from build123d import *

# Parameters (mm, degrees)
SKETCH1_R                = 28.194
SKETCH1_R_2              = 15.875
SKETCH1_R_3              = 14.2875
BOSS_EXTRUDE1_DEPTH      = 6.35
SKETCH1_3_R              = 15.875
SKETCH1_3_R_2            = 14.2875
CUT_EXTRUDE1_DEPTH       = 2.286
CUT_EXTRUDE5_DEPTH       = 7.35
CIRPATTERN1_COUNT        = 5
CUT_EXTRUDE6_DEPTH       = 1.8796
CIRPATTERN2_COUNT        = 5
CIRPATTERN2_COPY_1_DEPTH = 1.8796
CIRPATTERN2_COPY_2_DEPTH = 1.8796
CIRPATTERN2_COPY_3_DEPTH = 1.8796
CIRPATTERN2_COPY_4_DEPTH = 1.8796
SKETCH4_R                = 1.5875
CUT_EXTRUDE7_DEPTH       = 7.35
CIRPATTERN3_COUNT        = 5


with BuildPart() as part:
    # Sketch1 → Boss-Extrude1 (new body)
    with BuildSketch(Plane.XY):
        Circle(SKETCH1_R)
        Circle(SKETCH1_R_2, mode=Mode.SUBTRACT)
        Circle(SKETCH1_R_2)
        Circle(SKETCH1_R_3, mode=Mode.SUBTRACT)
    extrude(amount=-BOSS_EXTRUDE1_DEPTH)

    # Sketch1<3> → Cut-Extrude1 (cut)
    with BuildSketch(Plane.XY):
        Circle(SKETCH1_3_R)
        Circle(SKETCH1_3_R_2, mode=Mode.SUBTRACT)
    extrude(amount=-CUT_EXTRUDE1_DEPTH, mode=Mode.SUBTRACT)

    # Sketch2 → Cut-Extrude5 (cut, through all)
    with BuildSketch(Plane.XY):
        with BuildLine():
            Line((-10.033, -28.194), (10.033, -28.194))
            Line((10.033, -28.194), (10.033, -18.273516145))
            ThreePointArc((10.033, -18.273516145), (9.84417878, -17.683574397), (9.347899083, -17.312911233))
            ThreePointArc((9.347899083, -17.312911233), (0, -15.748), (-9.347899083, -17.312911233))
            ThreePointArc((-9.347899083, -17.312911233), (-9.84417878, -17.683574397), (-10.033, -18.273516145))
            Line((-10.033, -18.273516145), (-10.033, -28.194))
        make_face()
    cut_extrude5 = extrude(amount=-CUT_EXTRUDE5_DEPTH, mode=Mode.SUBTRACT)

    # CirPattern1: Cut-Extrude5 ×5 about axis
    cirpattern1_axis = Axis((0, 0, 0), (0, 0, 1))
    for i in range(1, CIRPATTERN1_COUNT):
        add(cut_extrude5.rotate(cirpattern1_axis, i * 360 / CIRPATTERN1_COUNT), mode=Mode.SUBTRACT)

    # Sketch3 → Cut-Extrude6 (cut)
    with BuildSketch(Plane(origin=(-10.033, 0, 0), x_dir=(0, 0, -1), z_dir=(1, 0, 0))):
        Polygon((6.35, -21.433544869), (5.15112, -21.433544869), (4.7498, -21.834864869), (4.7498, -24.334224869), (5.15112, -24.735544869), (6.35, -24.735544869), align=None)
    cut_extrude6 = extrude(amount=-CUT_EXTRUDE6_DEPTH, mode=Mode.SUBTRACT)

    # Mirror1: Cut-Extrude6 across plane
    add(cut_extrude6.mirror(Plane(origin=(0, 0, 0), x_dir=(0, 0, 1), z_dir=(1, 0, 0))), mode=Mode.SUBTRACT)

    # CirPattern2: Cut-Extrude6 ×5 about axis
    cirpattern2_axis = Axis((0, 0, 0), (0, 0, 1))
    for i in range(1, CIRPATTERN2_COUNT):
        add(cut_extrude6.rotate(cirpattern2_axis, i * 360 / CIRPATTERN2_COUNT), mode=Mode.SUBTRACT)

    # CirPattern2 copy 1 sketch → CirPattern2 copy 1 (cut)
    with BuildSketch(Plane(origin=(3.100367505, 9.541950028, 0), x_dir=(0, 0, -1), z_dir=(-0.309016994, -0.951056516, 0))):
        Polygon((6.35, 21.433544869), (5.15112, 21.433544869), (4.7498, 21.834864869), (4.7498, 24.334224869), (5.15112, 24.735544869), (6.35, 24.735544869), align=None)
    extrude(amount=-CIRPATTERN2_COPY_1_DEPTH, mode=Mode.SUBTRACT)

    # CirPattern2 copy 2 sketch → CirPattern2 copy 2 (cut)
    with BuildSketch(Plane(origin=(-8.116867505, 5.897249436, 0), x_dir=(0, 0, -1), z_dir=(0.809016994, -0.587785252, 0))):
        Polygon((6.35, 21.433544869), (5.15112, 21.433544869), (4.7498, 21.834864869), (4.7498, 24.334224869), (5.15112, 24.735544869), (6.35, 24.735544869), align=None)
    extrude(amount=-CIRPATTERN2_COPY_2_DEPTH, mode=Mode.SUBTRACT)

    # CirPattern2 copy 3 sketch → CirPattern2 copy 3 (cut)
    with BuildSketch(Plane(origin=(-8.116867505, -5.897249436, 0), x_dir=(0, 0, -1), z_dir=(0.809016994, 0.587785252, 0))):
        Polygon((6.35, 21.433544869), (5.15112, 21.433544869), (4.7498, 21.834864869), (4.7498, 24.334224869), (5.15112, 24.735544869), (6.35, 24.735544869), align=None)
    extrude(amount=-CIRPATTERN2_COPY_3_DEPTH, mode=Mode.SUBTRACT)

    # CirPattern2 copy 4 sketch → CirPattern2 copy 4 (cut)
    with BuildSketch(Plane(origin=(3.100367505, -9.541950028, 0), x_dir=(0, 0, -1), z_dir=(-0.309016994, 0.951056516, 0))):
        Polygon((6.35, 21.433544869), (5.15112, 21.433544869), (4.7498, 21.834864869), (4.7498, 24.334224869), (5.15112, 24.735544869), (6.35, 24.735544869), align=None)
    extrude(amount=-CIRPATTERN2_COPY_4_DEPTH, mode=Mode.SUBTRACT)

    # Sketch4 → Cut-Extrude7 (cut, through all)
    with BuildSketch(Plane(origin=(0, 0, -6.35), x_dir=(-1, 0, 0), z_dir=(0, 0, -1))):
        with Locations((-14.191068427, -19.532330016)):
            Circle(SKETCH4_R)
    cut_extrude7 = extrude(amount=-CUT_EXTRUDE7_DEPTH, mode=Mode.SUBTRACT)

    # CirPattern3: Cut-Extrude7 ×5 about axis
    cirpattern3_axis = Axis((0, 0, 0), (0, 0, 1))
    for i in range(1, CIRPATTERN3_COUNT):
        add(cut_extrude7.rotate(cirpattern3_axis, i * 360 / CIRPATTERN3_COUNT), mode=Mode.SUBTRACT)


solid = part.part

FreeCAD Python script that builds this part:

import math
import FreeCAD as App
import Part
import Sketcher
from FreeCAD import Vector
Q = App.Units.Quantity

doc = App.newDocument("Part")
params = doc.addObject("Spreadsheet::Sheet", "Params")
for row, (alias, value) in enumerate([
    ("sketch1_diameter", "2.22 in"),
    ("sketch1_diameter2", "1.125 in"),
    ("pad1_length", "0.25 in"),
    ("sketch2_diameter", "1.25 in"),
    ("sketch2_diameter2", "1.125 in"),
    ("pocket1_length", "0.09 in"),
    ("sketch3_radius", "0.04 in"),
    ("sketch3_radius2", "1.13 in"),
    ("sketch3_width", "0.79 in"),
    ("sketch4_width", "0.13 in"),
    ("pocket3_length", "0.074 in"),
    ("sketch5_height", "0.13 in"),
    ("pocket4_length", "0.074 in"),
    ("sketch6_height", "0.13 in"),
    ("pocket5_length", "0.074 in"),
    ("sketch7_height", "0.13 in"),
    ("pocket6_length", "0.074 in"),
    ("sketch8_height", "0.13 in"),
    ("pocket7_length", "0.074 in"),
    ("sketch9_diameter", "0.125 in"),
], start=1):
    params.set(f"A{row}", alias)
    params.set(f"B{row}", "=" + value)
    params.setAlias(f"B{row}", alias)

body = doc.addObject("PartDesign::Body", "Body")

# Sketch on XY plane
sketch1 = doc.addObject("Sketcher::SketchObject", "Sketch")
body.addObject(sketch1)
sketch1.AttachmentSupport = (doc.XY_Plane, [""])
sketch1.MapMode = "FlatFace"
sketch1.addGeometry(Part.Circle(Vector(0, 0, 0), Vector(0, 0, 1), 28.194), False)
sketch1.addGeometry(Part.Circle(Vector(0, 0, 0), Vector(0, 0, 1), 14.2875), False)
sketch1.addConstraint(Sketcher.Constraint("Coincident", 0, 3, -1, 1))
sketch1.addConstraint(Sketcher.Constraint("Coincident", 1, 3, -1, 1))
sketch1.addConstraint(Sketcher.Constraint("Diameter", 0, Q("2.22 in")))
sketch1.addConstraint(Sketcher.Constraint("Diameter", 1, Q("1.125 in")))
sketch1.setExpression("Constraints[2]", "Params.sketch1_diameter")
sketch1.setExpression("Constraints[3]", "Params.sketch1_diameter2")
pad1 = doc.addObject("PartDesign::Pad", "Pad")
body.addObject(pad1)
pad1.Profile = sketch1
pad1.setExpression("Length", "Params.pad1_length")
pad1.Reversed = True

# Sketch on XY plane
sketch2 = doc.addObject("Sketcher::SketchObject", "Sketch001")
body.addObject(sketch2)
sketch2.AttachmentSupport = (doc.XY_Plane, [""])
sketch2.MapMode = "FlatFace"
sketch2.addGeometry(Part.Circle(Vector(0, 0, 0), Vector(0, 0, 1), 15.875), False)
sketch2.addGeometry(Part.Circle(Vector(0, 0, 0), Vector(0, 0, 1), 14.2875), False)
sketch2.addConstraint(Sketcher.Constraint("Coincident", 0, 3, -1, 1))
sketch2.addConstraint(Sketcher.Constraint("Coincident", 1, 3, -1, 1))
sketch2.addConstraint(Sketcher.Constraint("Diameter", 0, Q("1.25 in")))
sketch2.addConstraint(Sketcher.Constraint("Diameter", 1, Q("1.125 in")))
sketch2.setExpression("Constraints[2]", "Params.sketch2_diameter")
sketch2.setExpression("Constraints[3]", "Params.sketch2_diameter2")
pocket1 = doc.addObject("PartDesign::Pocket", "Pocket")
body.addObject(pocket1)
pocket1.Profile = sketch2
pocket1.setExpression("Length", "Params.pocket1_length")

# Sketch on XY plane
sketch3 = doc.addObject("Sketcher::SketchObject", "Sketch002")
body.addObject(sketch3)
sketch3.AttachmentSupport = (doc.XY_Plane, [""])
sketch3.MapMode = "FlatFace"
sketch3.addGeometry(Part.LineSegment(Vector(-10.033, -28.194, 0), Vector(10.033, -28.194, 0)), False)
sketch3.addGeometry(Part.LineSegment(Vector(10.033, -28.194, 0), Vector(10.033, -18.273516, 0)), False)
sketch3.addGeometry(Part.ArcOfCircle(Part.Circle(Vector(9.017, -18.273516, 0), Vector(0, 0, 1), 1.016), math.radians(0), math.radians(70.992733)), False)
sketch3.addGeometry(Part.ArcOfCircle(Part.Circle(Vector(0, -44.45, 0), Vector(0, 0, 1), 28.702), math.radians(70.992733), math.radians(109.007267)), False)
sketch3.addGeometry(Part.ArcOfCircle(Part.Circle(Vector(-9.017, -18.273516, 0), Vector(0, 0, 1), 1.016), math.radians(109.007267), math.radians(180)), False)
sketch3.addGeometry(Part.LineSegment(Vector(-10.033, -18.273516, 0), Vector(-10.033, -28.194, 0)), False)
sketch3.addConstraint(Sketcher.Constraint("Coincident", 0, 2, 1, 1))
sketch3.addConstraint(Sketcher.Constraint("Tangent", 1, 2, 2, 1))
sketch3.addConstraint(Sketcher.Constraint("Tangent", 2, 2, 3, 1))
sketch3.addConstraint(Sketcher.Constraint("Tangent", 3, 2, 4, 1))
sketch3.addConstraint(Sketcher.Constraint("Tangent", 4, 2, 5, 1))
sketch3.addConstraint(Sketcher.Constraint("Coincident", 5, 2, 0, 1))
sketch3.addConstraint(Sketcher.Constraint("Horizontal", 0))
sketch3.addConstraint(Sketcher.Constraint("Vertical", 1))
sketch3.addConstraint(Sketcher.Constraint("Vertical", 5))
sketch3.addConstraint(Sketcher.Constraint("Equal", 2, 4))
sketch3.addConstraint(Sketcher.Constraint("Symmetric", 2, 3, 4, 3, -2))
sketch3.addConstraint(Sketcher.Constraint("Radius", 2, Q("0.04 in")))
sketch3.addConstraint(Sketcher.Constraint("Radius", 3, Q("1.13 in")))
sketch3.addConstraint(Sketcher.Constraint("DistanceX", 0, 1, 0, 2, Q("0.79 in")))
sketch3.addConstraint(Sketcher.Constraint("DistanceY", 3, 3, -1, 1, Q("1.75 in")))
sketch3.addConstraint(Sketcher.Constraint("DistanceY", 0, 2, -1, 1, Q("1.11 in")))
sketch3.setExpression("Constraints[11]", "Params.sketch3_radius")
sketch3.setExpression("Constraints[12]", "Params.sketch3_radius2")
sketch3.setExpression("Constraints[13]", "Params.sketch3_width")
pocket2 = doc.addObject("PartDesign::Pocket", "Pocket001")
body.addObject(pocket2)
pocket2.Profile = sketch3
pocket2.Type = "ThroughAll"
doc.recompute()

polarpattern = doc.addObject("PartDesign::PolarPattern", "PolarPattern")
body.addObject(polarpattern)
polarpattern.Originals = [pocket2]
polarpattern.Axis = (doc.Z_Axis, [""])
polarpattern.Angle = 360
polarpattern.Occurrences = 5
body.Tip = polarpattern

# Sketch on YZ plane
sketch4 = doc.addObject("Sketcher::SketchObject", "Sketch003")
body.addObject(sketch4)
sketch4.AttachmentSupport = (doc.YZ_Plane, [""])
sketch4.MapMode = "FlatFace"
sketch4.AttachmentOffset = App.Placement(Vector(0, 0, -0.395 * 25.4), App.Rotation())
sketch4.addGeometry(Part.LineSegment(Vector(-21.433545, -6.35, 0), Vector(-21.433545, -5.15112, 0)), False)
sketch4.addGeometry(Part.LineSegment(Vector(-21.433545, -5.15112, 0), Vector(-21.834865, -4.7498, 0)), False)
sketch4.addGeometry(Part.LineSegment(Vector(-21.834865, -4.7498, 0), Vector(-24.334225, -4.7498, 0)), False)
sketch4.addGeometry(Part.LineSegment(Vector(-24.334225, -4.7498, 0), Vector(-24.735545, -5.15112, 0)), False)
sketch4.addGeometry(Part.LineSegment(Vector(-24.735545, -5.15112, 0), Vector(-24.735545, -6.35, 0)), False)
sketch4.addGeometry(Part.LineSegment(Vector(-24.735545, -6.35, 0), Vector(-21.433545, -6.35, 0)), False)
sketch4.addConstraint(Sketcher.Constraint("Coincident", 0, 2, 1, 1))
sketch4.addConstraint(Sketcher.Constraint("Coincident", 1, 2, 2, 1))
sketch4.addConstraint(Sketcher.Constraint("Coincident", 2, 2, 3, 1))
sketch4.addConstraint(Sketcher.Constraint("Coincident", 3, 2, 4, 1))
sketch4.addConstraint(Sketcher.Constraint("Coincident", 4, 2, 5, 1))
sketch4.addConstraint(Sketcher.Constraint("Coincident", 5, 2, 0, 1))
sketch4.addConstraint(Sketcher.Constraint("Vertical", 0))
sketch4.addConstraint(Sketcher.Constraint("Horizontal", 2))
sketch4.addConstraint(Sketcher.Constraint("Vertical", 4))
sketch4.addConstraint(Sketcher.Constraint("Horizontal", 5))
sketch4.addConstraint(Sketcher.Constraint("Perpendicular", 1, 3))
sketch4.addConstraint(Sketcher.Constraint("Horizontal", 0, 2, 3, 2))
sketch4.addConstraint(Sketcher.Constraint("Equal", 1, 3))
sketch4.addConstraint(Sketcher.Constraint("DistanceX", 5, 1, 5, 2, Q("0.13 in")))
sketch4.addConstraint(Sketcher.Constraint("DistanceY", 4, 2, -1, 1, Q("0.25 in")))
sketch4.addConstraint(Sketcher.Constraint("DistanceX", 2, 2, 2, 1, Q("0.0984 in")))
sketch4.addConstraint(Sketcher.Constraint("DistanceY", 0, 1, 0, 2, Q("0.0472 in")))
sketch4.addConstraint(Sketcher.Constraint("DistanceX", 0, 2, -1, 1, 21.433545))
sketch4.setExpression("Constraints[13]", "Params.sketch4_width")
pocket3 = doc.addObject("PartDesign::Pocket", "Pocket002")
body.addObject(pocket3)
pocket3.Profile = sketch4
pocket3.setExpression("Length", "Params.pocket3_length")
doc.recompute()

mirrored = doc.addObject("PartDesign::Mirrored", "Mirrored")
body.addObject(mirrored)
mirrored.Originals = [pocket3]
mirrored.MirrorPlane = (doc.YZ_Plane, [""])
body.Tip = mirrored
doc.recompute()

polarpattern2 = doc.addObject("PartDesign::PolarPattern", "PolarPattern001")
body.addObject(polarpattern2)
polarpattern2.Originals = [pocket3]
polarpattern2.Axis = (doc.Z_Axis, [""])
polarpattern2.Angle = 360
polarpattern2.Occurrences = 5
body.Tip = polarpattern2

# Sketch on an angled plane
sketch5 = doc.addObject("Sketcher::SketchObject", "Sketch004")
body.addObject(sketch5)
sketch5.Placement = App.Placement(Vector(3.100368, 9.54195, 0), App.Rotation(Vector(0, 0, -1), Vector(0.951056516, -0.309016994, 0), Vector(-0.309016994, -0.951056516, 0), "ZXY"))
sketch5.addGeometry(Part.LineSegment(Vector(5.15112, 21.433545, 0), Vector(6.35, 21.433545, 0)), False)
sketch5.addGeometry(Part.LineSegment(Vector(6.35, 21.433545, 0), Vector(6.35, 24.735545, 0)), False)
sketch5.addGeometry(Part.LineSegment(Vector(6.35, 24.735545, 0), Vector(5.15112, 24.735545, 0)), False)
sketch5.addGeometry(Part.LineSegment(Vector(5.15112, 24.735545, 0), Vector(4.7498, 24.334225, 0)), False)
sketch5.addGeometry(Part.LineSegment(Vector(4.7498, 24.334225, 0), Vector(4.7498, 21.834865, 0)), False)
sketch5.addGeometry(Part.LineSegment(Vector(4.7498, 21.834865, 0), Vector(5.15112, 21.433545, 0)), False)
sketch5.addConstraint(Sketcher.Constraint("Coincident", 0, 2, 1, 1))
sketch5.addConstraint(Sketcher.Constraint("Coincident", 1, 2, 2, 1))
sketch5.addConstraint(Sketcher.Constraint("Coincident", 2, 2, 3, 1))
sketch5.addConstraint(Sketcher.Constraint("Coincident", 3, 2, 4, 1))
sketch5.addConstraint(Sketcher.Constraint("Coincident", 4, 2, 5, 1))
sketch5.addConstraint(Sketcher.Constraint("Coincident", 5, 2, 0, 1))
sketch5.addConstraint(Sketcher.Constraint("Horizontal", 0))
sketch5.addConstraint(Sketcher.Constraint("Vertical", 1))
sketch5.addConstraint(Sketcher.Constraint("Horizontal", 2))
sketch5.addConstraint(Sketcher.Constraint("Vertical", 4))
sketch5.addConstraint(Sketcher.Constraint("Perpendicular", 3, 5))
sketch5.addConstraint(Sketcher.Constraint("Vertical", 2, 2, 5, 2))
sketch5.addConstraint(Sketcher.Constraint("Equal", 3, 5))
sketch5.addConstraint(Sketcher.Constraint("DistanceY", 1, 1, 1, 2, Q("0.13 in")))
sketch5.addConstraint(Sketcher.Constraint("DistanceX", -1, 1, 0, 2, Q("0.25 in")))
sketch5.addConstraint(Sketcher.Constraint("DistanceX", 0, 1, 0, 2, Q("0.0472 in")))
sketch5.addConstraint(Sketcher.Constraint("DistanceY", 4, 2, 4, 1, Q("0.0984 in")))
sketch5.addConstraint(Sketcher.Constraint("DistanceY", -1, 1, 0, 2, 21.433545))
sketch5.setExpression("Constraints[13]", "Params.sketch5_height")
pocket4 = doc.addObject("PartDesign::Pocket", "Pocket003")
body.addObject(pocket4)
pocket4.Profile = sketch5
pocket4.setExpression("Length", "Params.pocket4_length")

# Sketch on an angled plane
sketch6 = doc.addObject("Sketcher::SketchObject", "Sketch005")
body.addObject(sketch6)
sketch6.Placement = App.Placement(Vector(-8.116868, 5.897249, 0), App.Rotation(Vector(0, 0, -1), Vector(0.587785252, 0.809016994, 0), Vector(0.809016994, -0.587785252, 0), "ZXY"))
sketch6.addGeometry(Part.LineSegment(Vector(5.15112, 21.433545, 0), Vector(6.35, 21.433545, 0)), False)
sketch6.addGeometry(Part.LineSegment(Vector(6.35, 21.433545, 0), Vector(6.35, 24.735545, 0)), False)
sketch6.addGeometry(Part.LineSegment(Vector(6.35, 24.735545, 0), Vector(5.15112, 24.735545, 0)), False)
sketch6.addGeometry(Part.LineSegment(Vector(5.15112, 24.735545, 0), Vector(4.7498, 24.334225, 0)), False)
sketch6.addGeometry(Part.LineSegment(Vector(4.7498, 24.334225, 0), Vector(4.7498, 21.834865, 0)), False)
sketch6.addGeometry(Part.LineSegment(Vector(4.7498, 21.834865, 0), Vector(5.15112, 21.433545, 0)), False)
sketch6.addConstraint(Sketcher.Constraint("Coincident", 0, 2, 1, 1))
sketch6.addConstraint(Sketcher.Constraint("Coincident", 1, 2, 2, 1))
sketch6.addConstraint(Sketcher.Constraint("Coincident", 2, 2, 3, 1))
sketch6.addConstraint(Sketcher.Constraint("Coincident", 3, 2, 4, 1))
sketch6.addConstraint(Sketcher.Constraint("Coincident", 4, 2, 5, 1))
sketch6.addConstraint(Sketcher.Constraint("Coincident", 5, 2, 0, 1))
sketch6.addConstraint(Sketcher.Constraint("Horizontal", 0))
sketch6.addConstraint(Sketcher.Constraint("Vertical", 1))
sketch6.addConstraint(Sketcher.Constraint("Horizontal", 2))
sketch6.addConstraint(Sketcher.Constraint("Vertical", 4))
sketch6.addConstraint(Sketcher.Constraint("Perpendicular", 3, 5))
sketch6.addConstraint(Sketcher.Constraint("Vertical", 2, 2, 5, 2))
sketch6.addConstraint(Sketcher.Constraint("Equal", 3, 5))
sketch6.addConstraint(Sketcher.Constraint("DistanceY", 1, 1, 1, 2, Q("0.13 in")))
sketch6.addConstraint(Sketcher.Constraint("DistanceX", -1, 1, 0, 2, Q("0.25 in")))
sketch6.addConstraint(Sketcher.Constraint("DistanceX", 0, 1, 0, 2, Q("0.0472 in")))
sketch6.addConstraint(Sketcher.Constraint("DistanceY", 4, 2, 4, 1, Q("0.0984 in")))
sketch6.addConstraint(Sketcher.Constraint("DistanceY", -1, 1, 0, 2, 21.433545))
sketch6.setExpression("Constraints[13]", "Params.sketch6_height")
pocket5 = doc.addObject("PartDesign::Pocket", "Pocket004")
body.addObject(pocket5)
pocket5.Profile = sketch6
pocket5.setExpression("Length", "Params.pocket5_length")

# Sketch on an angled plane
sketch7 = doc.addObject("Sketcher::SketchObject", "Sketch006")
body.addObject(sketch7)
sketch7.Placement = App.Placement(Vector(-8.116868, -5.897249, 0), App.Rotation(Vector(0, 0, -1), Vector(-0.587785252, 0.809016994, 0), Vector(0.809016994, 0.587785252, 0), "ZXY"))
sketch7.addGeometry(Part.LineSegment(Vector(5.15112, 21.433545, 0), Vector(6.35, 21.433545, 0)), False)
sketch7.addGeometry(Part.LineSegment(Vector(6.35, 21.433545, 0), Vector(6.35, 24.735545, 0)), False)
sketch7.addGeometry(Part.LineSegment(Vector(6.35, 24.735545, 0), Vector(5.15112, 24.735545, 0)), False)
sketch7.addGeometry(Part.LineSegment(Vector(5.15112, 24.735545, 0), Vector(4.7498, 24.334225, 0)), False)
sketch7.addGeometry(Part.LineSegment(Vector(4.7498, 24.334225, 0), Vector(4.7498, 21.834865, 0)), False)
sketch7.addGeometry(Part.LineSegment(Vector(4.7498, 21.834865, 0), Vector(5.15112, 21.433545, 0)), False)
sketch7.addConstraint(Sketcher.Constraint("Coincident", 0, 2, 1, 1))
sketch7.addConstraint(Sketcher.Constraint("Coincident", 1, 2, 2, 1))
sketch7.addConstraint(Sketcher.Constraint("Coincident", 2, 2, 3, 1))
sketch7.addConstraint(Sketcher.Constraint("Coincident", 3, 2, 4, 1))
sketch7.addConstraint(Sketcher.Constraint("Coincident", 4, 2, 5, 1))
sketch7.addConstraint(Sketcher.Constraint("Coincident", 5, 2, 0, 1))
sketch7.addConstraint(Sketcher.Constraint("Horizontal", 0))
sketch7.addConstraint(Sketcher.Constraint("Vertical", 1))
sketch7.addConstraint(Sketcher.Constraint("Horizontal", 2))
sketch7.addConstraint(Sketcher.Constraint("Vertical", 4))
sketch7.addConstraint(Sketcher.Constraint("Perpendicular", 3, 5))
sketch7.addConstraint(Sketcher.Constraint("Vertical", 2, 2, 5, 2))
sketch7.addConstraint(Sketcher.Constraint("Equal", 3, 5))
sketch7.addConstraint(Sketcher.Constraint("DistanceY", 1, 1, 1, 2, Q("0.13 in")))
sketch7.addConstraint(Sketcher.Constraint("DistanceX", -1, 1, 0, 2, Q("0.25 in")))
sketch7.addConstraint(Sketcher.Constraint("DistanceX", 0, 1, 0, 2, Q("0.0472 in")))
sketch7.addConstraint(Sketcher.Constraint("DistanceY", 4, 2, 4, 1, Q("0.0984 in")))
sketch7.addConstraint(Sketcher.Constraint("DistanceY", -1, 1, 0, 2, 21.433545))
sketch7.setExpression("Constraints[13]", "Params.sketch7_height")
pocket6 = doc.addObject("PartDesign::Pocket", "Pocket005")
body.addObject(pocket6)
pocket6.Profile = sketch7
pocket6.setExpression("Length", "Params.pocket6_length")

# Sketch on an angled plane
sketch8 = doc.addObject("Sketcher::SketchObject", "Sketch007")
body.addObject(sketch8)
sketch8.Placement = App.Placement(Vector(3.100368, -9.54195, 0), App.Rotation(Vector(0, 0, -1), Vector(-0.951056516, -0.309016994, 0), Vector(-0.309016994, 0.951056516, 0), "ZXY"))
sketch8.addGeometry(Part.LineSegment(Vector(5.15112, 21.433545, 0), Vector(6.35, 21.433545, 0)), False)
sketch8.addGeometry(Part.LineSegment(Vector(6.35, 21.433545, 0), Vector(6.35, 24.735545, 0)), False)
sketch8.addGeometry(Part.LineSegment(Vector(6.35, 24.735545, 0), Vector(5.15112, 24.735545, 0)), False)
sketch8.addGeometry(Part.LineSegment(Vector(5.15112, 24.735545, 0), Vector(4.7498, 24.334225, 0)), False)
sketch8.addGeometry(Part.LineSegment(Vector(4.7498, 24.334225, 0), Vector(4.7498, 21.834865, 0)), False)
sketch8.addGeometry(Part.LineSegment(Vector(4.7498, 21.834865, 0), Vector(5.15112, 21.433545, 0)), False)
sketch8.addConstraint(Sketcher.Constraint("Coincident", 0, 2, 1, 1))
sketch8.addConstraint(Sketcher.Constraint("Coincident", 1, 2, 2, 1))
sketch8.addConstraint(Sketcher.Constraint("Coincident", 2, 2, 3, 1))
sketch8.addConstraint(Sketcher.Constraint("Coincident", 3, 2, 4, 1))
sketch8.addConstraint(Sketcher.Constraint("Coincident", 4, 2, 5, 1))
sketch8.addConstraint(Sketcher.Constraint("Coincident", 5, 2, 0, 1))
sketch8.addConstraint(Sketcher.Constraint("Horizontal", 0))
sketch8.addConstraint(Sketcher.Constraint("Vertical", 1))
sketch8.addConstraint(Sketcher.Constraint("Horizontal", 2))
sketch8.addConstraint(Sketcher.Constraint("Vertical", 4))
sketch8.addConstraint(Sketcher.Constraint("Perpendicular", 3, 5))
sketch8.addConstraint(Sketcher.Constraint("Vertical", 2, 2, 5, 2))
sketch8.addConstraint(Sketcher.Constraint("Equal", 3, 5))
sketch8.addConstraint(Sketcher.Constraint("DistanceY", 1, 1, 1, 2, Q("0.13 in")))
sketch8.addConstraint(Sketcher.Constraint("DistanceX", -1, 1, 0, 2, Q("0.25 in")))
sketch8.addConstraint(Sketcher.Constraint("DistanceX", 0, 1, 0, 2, Q("0.0472 in")))
sketch8.addConstraint(Sketcher.Constraint("DistanceY", 4, 2, 4, 1, Q("0.0984 in")))
sketch8.addConstraint(Sketcher.Constraint("DistanceY", -1, 1, 0, 2, 21.433545))
sketch8.setExpression("Constraints[13]", "Params.sketch8_height")
pocket7 = doc.addObject("PartDesign::Pocket", "Pocket006")
body.addObject(pocket7)
pocket7.Profile = sketch8
pocket7.setExpression("Length", "Params.pocket7_length")

# Sketch on XY plane
sketch9 = doc.addObject("Sketcher::SketchObject", "Sketch008")
body.addObject(sketch9)
sketch9.AttachmentSupport = (doc.XY_Plane, [""])
sketch9.MapMode = "FlatFace"
sketch9.AttachmentOffset = App.Placement(Vector(0, 0, -0.25 * 25.4), App.Rotation())
sketch9.addGeometry(Part.Circle(Vector(14.191068, -19.53233, 0), Vector(0, 0, 1), 1.5875), False)
sketch9.addConstraint(Sketcher.Constraint("Diameter", 0, Q("0.125 in")))
sketch9.addConstraint(Sketcher.Constraint("DistanceX", -1, 1, 0, 3, 14.191068))
sketch9.addConstraint(Sketcher.Constraint("DistanceY", 0, 3, -1, 1, 19.53233))
sketch9.setExpression("Constraints[0]", "Params.sketch9_diameter")
pocket8 = doc.addObject("PartDesign::Pocket", "Pocket007")
body.addObject(pocket8)
pocket8.Profile = sketch9
pocket8.Type = "ThroughAll"
pocket8.Reversed = True
doc.recompute()

polarpattern3 = doc.addObject("PartDesign::PolarPattern", "PolarPattern002")
body.addObject(polarpattern3)
polarpattern3.Originals = [pocket8]
polarpattern3.Axis = (doc.Z_Axis, [""])
polarpattern3.Angle = 360
polarpattern3.Occurrences = 5
body.Tip = polarpattern3

doc.recompute()
